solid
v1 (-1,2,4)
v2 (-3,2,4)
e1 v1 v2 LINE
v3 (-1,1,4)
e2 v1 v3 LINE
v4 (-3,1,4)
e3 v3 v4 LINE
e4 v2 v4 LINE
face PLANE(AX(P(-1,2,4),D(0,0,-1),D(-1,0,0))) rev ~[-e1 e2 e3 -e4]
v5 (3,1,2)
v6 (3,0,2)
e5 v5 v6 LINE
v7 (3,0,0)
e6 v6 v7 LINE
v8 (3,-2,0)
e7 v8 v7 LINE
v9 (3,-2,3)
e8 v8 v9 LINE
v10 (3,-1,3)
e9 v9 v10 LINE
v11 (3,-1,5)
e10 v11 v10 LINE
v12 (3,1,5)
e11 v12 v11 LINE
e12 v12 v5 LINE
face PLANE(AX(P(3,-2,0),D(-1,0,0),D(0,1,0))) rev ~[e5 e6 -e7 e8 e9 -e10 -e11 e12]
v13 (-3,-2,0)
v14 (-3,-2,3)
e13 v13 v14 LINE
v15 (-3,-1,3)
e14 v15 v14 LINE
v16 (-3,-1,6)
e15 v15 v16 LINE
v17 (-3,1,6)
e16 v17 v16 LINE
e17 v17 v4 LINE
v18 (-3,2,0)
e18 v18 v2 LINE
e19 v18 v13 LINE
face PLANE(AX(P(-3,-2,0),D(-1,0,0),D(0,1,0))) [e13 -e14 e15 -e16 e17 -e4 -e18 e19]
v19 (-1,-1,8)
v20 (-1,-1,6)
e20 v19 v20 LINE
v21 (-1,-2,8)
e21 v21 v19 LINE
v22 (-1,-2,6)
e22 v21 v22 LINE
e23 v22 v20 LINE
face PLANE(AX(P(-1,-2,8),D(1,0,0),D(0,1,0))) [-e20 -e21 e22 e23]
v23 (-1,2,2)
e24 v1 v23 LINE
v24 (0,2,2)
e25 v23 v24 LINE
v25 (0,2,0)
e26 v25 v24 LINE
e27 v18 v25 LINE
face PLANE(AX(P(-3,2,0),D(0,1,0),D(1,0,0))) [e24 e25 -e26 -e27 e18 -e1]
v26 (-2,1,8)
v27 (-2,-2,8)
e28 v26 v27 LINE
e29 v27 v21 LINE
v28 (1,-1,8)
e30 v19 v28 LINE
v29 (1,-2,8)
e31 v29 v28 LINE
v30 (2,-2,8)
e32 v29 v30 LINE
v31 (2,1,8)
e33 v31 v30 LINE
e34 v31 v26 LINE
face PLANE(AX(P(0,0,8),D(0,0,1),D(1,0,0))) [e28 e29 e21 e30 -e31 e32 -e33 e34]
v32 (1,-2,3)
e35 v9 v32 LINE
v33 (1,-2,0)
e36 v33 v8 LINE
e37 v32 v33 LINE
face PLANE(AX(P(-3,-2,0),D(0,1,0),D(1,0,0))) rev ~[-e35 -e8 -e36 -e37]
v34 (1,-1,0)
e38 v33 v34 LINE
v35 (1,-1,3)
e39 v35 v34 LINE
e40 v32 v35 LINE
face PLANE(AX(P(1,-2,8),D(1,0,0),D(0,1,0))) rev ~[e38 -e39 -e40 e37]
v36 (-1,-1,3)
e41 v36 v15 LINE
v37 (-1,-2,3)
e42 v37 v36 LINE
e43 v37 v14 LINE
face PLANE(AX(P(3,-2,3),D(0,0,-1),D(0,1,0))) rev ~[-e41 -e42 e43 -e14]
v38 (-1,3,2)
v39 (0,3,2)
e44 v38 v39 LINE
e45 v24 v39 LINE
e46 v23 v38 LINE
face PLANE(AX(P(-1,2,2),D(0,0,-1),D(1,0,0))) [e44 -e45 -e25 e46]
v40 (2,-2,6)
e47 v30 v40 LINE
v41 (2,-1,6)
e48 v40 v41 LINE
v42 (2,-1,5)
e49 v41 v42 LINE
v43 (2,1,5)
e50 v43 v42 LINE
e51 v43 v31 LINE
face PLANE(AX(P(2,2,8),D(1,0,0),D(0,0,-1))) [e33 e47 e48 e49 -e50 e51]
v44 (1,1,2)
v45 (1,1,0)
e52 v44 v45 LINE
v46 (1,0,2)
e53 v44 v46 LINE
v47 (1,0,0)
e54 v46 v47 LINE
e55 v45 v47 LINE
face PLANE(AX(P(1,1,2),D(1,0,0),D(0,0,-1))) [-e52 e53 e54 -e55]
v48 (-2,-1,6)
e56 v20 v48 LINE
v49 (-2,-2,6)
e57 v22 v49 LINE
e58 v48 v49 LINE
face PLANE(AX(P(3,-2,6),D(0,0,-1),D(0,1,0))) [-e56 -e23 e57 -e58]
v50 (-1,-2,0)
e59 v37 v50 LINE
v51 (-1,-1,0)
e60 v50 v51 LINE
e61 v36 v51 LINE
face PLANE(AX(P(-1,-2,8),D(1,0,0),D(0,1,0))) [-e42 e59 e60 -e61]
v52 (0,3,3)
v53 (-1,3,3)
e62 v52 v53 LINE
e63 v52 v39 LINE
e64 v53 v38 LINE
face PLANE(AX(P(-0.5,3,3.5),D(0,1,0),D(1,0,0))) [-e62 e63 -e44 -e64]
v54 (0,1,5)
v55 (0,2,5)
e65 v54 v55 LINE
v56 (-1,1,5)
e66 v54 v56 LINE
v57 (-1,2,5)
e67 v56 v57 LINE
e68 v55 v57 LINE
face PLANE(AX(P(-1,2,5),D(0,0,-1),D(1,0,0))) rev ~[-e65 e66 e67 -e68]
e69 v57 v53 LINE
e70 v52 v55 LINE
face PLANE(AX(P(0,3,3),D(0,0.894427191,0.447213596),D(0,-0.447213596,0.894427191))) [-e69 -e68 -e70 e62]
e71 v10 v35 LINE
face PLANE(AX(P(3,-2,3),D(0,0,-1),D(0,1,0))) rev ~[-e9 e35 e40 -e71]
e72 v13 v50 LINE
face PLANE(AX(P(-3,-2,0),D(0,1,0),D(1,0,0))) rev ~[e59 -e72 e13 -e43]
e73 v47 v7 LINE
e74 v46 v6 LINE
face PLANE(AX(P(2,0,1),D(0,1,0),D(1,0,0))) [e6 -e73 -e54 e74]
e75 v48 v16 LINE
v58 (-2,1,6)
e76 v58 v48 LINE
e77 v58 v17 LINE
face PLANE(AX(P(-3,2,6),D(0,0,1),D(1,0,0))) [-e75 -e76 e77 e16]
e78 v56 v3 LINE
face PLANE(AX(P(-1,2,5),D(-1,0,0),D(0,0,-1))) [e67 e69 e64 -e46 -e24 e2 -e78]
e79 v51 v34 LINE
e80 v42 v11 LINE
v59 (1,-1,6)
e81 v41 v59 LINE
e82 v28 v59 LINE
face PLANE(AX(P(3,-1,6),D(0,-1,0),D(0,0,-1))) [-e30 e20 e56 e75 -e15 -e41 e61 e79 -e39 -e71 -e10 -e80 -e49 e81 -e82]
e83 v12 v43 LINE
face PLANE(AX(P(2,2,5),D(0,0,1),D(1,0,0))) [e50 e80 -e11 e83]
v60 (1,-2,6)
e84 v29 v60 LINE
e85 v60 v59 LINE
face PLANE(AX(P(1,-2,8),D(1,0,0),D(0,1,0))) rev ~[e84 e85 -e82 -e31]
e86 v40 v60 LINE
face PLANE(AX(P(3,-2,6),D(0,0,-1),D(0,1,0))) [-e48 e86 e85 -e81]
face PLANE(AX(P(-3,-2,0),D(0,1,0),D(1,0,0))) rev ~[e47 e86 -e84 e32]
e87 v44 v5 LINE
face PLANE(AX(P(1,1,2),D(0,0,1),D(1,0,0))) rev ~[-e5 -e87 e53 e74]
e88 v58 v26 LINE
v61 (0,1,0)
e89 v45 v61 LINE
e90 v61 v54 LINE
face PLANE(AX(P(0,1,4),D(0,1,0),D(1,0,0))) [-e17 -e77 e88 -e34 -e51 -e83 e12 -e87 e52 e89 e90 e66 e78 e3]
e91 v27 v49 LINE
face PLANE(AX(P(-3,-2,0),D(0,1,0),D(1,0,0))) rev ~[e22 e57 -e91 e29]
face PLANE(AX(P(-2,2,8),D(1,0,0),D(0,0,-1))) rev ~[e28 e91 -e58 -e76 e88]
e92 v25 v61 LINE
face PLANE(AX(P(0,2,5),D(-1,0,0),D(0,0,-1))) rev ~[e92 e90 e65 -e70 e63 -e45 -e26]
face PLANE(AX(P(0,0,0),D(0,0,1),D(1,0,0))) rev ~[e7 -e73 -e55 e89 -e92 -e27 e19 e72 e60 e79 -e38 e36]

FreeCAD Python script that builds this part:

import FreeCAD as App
import Part
import Sketcher
Q = App.Units.Quantity

doc = App.newDocument("Part")
body = doc.addObject("PartDesign::Body", "Body")

# Sketch on XY plane
sketch1 = doc.addObject("Sketcher::SketchObject", "Sketch")
body.addObject(sketch1)
sketch1.AttachmentSupport = (doc.XY_Plane, [""])
sketch1.MapMode = "FlatFace"
sketch1.addGeometry([
    Part.LineSegment(App.Vector(-3, 2, 0), App.Vector(-3, -2, 0)),
    Part.LineSegment(App.Vector(-3, -2, 0), App.Vector(3, -2, 0)),
    Part.LineSegment(App.Vector(3, -2, 0), App.Vector(3, 2, 0)),
    Part.LineSegment(App.Vector(3, 2, 0), App.Vector(-3, 2, 0)),
], False)
sketch1.addConstraint([
    Sketcher.Constraint("Coincident", 0, 2, 1, 1),
    Sketcher.Constraint("Coincident", 1, 2, 2, 1),
    Sketcher.Constraint("Coincident", 2, 2, 3, 1),
    Sketcher.Constraint("Coincident", 3, 2, 0, 1),
    Sketcher.Constraint("Vertical", 0),
    Sketcher.Constraint("Horizontal", 1),
    Sketcher.Constraint("Vertical", 2),
    Sketcher.Constraint("Horizontal", 3),
    Sketcher.Constraint("Symmetric", 0, 2, 2, 2, -1, 1),
    Sketcher.Constraint("DistanceX", 1, 1, 1, 2, Q("6 mm")),
    Sketcher.Constraint("DistanceY", 0, 2, 0, 1, Q("4 mm")),
])
pad1 = doc.addObject("PartDesign::Pad", "Pad")
body.addObject(pad1)
pad1.Profile = sketch1
pad1.Length = 8

# Sketch on XY plane
sketch2 = doc.addObject("Sketcher::SketchObject", "Sketch001")
body.addObject(sketch2)
sketch2.AttachmentSupport = (doc.XY_Plane, [""])
sketch2.MapMode = "FlatFace"
sketch2.AttachmentOffset = App.Placement(App.Vector(0, 0, 8), App.Rotation())
sketch2.addGeometry([
    Part.LineSegment(App.Vector(-1, -1, 0), App.Vector(-1, -2, 0)),
    Part.LineSegment(App.Vector(-1, -2, 0), App.Vector(1, -2, 0)),
    Part.LineSegment(App.Vector(1, -2, 0), App.Vector(1, -1, 0)),
    Part.LineSegment(App.Vector(1, -1, 0), App.Vector(-1, -1, 0)),
], False)
sketch2.addConstraint([
    Sketcher.Constraint("Coincident", 0, 2, 1, 1),
    Sketcher.Constraint("Coincident", 1, 2, 2, 1),
    Sketcher.Constraint("Coincident", 2, 2, 3, 1),
    Sketcher.Constraint("Coincident", 3, 2, 0, 1),
    Sketcher.Constraint("Vertical", 0),
    Sketcher.Constraint("Horizontal", 1),
    Sketcher.Constraint("Vertical", 2),
    Sketcher.Constraint("Horizontal", 3),
    Sketcher.Constraint("DistanceX", 1, 1, 1, 2, Q("2 mm")),
    Sketcher.Constraint("DistanceY", 0, 2, 0, 1, Q("1 mm")),
    Sketcher.Constraint("DistanceX", 0, 2, -1, 1, Q("1 mm")),
    Sketcher.Constraint("DistanceY", 0, 2, -1, 1, Q("2 mm")),
])
pocket1 = doc.addObject("PartDesign::Pocket", "Pocket")
body.addObject(pocket1)
pocket1.Profile = sketch2
pocket1.Type = "ThroughAll"

# Sketch on XZ plane
sketch3 = doc.addObject("Sketcher::SketchObject", "Sketch002")
body.addObject(sketch3)
sketch3.AttachmentSupport = (doc.XZ_Plane, [""])
sketch3.MapMode = "FlatFace"
sketch3.AttachmentOffset = App.Placement(App.Vector(0, 0, -2), App.Rotation())
sketch3.addGeometry([
    Part.LineSegment(App.Vector(-3, 6, 0), App.Vector(-3, 8, 0)),  # 0
    Part.LineSegment(App.Vector(-3, 8, 0), App.Vector(-2, 8, 0)),  # 1
    Part.LineSegment(App.Vector(-2, 8, 0), App.Vector(-2, 6, 0)),  # 2
    Part.LineSegment(App.Vector(-2, 6, 0), App.Vector(-3, 6, 0)),  # 3
    Part.LineSegment(App.Vector(2, 5, 0), App.Vector(2, 8, 0)),  # 4
    Part.LineSegment(App.Vector(2, 8, 0), App.Vector(3, 8, 0)),  # 5
    Part.LineSegment(App.Vector(3, 8, 0), App.Vector(3, 5, 0)),  # 6
    Part.LineSegment(App.Vector(3, 5, 0), App.Vector(2, 5, 0)),  # 7
], False)
sketch3.addConstraint([
    Sketcher.Constraint("Coincident", 0, 2, 1, 1),
    Sketcher.Constraint("Coincident", 1, 2, 2, 1),
    Sketcher.Constraint("Coincident", 2, 2, 3, 1),
    Sketcher.Constraint("Coincident", 3, 2, 0, 1),
    Sketcher.Constraint("Coincident", 4, 2, 5, 1),
    Sketcher.Constraint("Coincident", 5, 2, 6, 1),
    Sketcher.Constraint("Coincident", 6, 2, 7, 1),
    Sketcher.Constraint("Coincident", 7, 2, 4, 1),
    Sketcher.Constraint("Vertical", 0),
    Sketcher.Constraint("Horizontal", 1),
    Sketcher.Constraint("Vertical", 2),
    Sketcher.Constraint("Horizontal", 3),
    Sketcher.Constraint("Vertical", 4),
    Sketcher.Constraint("Horizontal", 5),
    Sketcher.Constraint("Vertical", 6),
    Sketcher.Constraint("Horizontal", 7),
    Sketcher.Constraint("Symmetric", 1, 2, 4, 2, -2),
    Sketcher.Constraint("Equal", 3, 5),
    Sketcher.Constraint("DistanceX", 1, 1, 1, 2, Q("1 mm")),
    Sketcher.Constraint("DistanceY", 0, 1, 0, 2, Q("2 mm")),
    Sketcher.Constraint("DistanceY", 4, 1, 4, 2, Q("3 mm")),
    Sketcher.Constraint("DistanceX", 0, 2, -1, 1, Q("3 mm")),
    Sketcher.Constraint("DistanceY", -1, 1, 0, 2, Q("8 mm")),
])
pocket2 = doc.addObject("PartDesign::Pocket", "Pocket001")
body.addObject(pocket2)
pocket2.Profile = sketch3
pocket2.Type = "ThroughAll"
pocket2.Reversed = True

# Sketch on YZ plane
sketch4 = doc.addObject("Sketcher::SketchObject", "Sketch003")
body.addObject(sketch4)
sketch4.AttachmentSupport = (doc.YZ_Plane, [""])
sketch4.MapMode = "FlatFace"
sketch4.AttachmentOffset = App.Placement(App.Vector(0, 0, 3), App.Rotation())
sketch4.addGeometry([
    Part.LineSegment(App.Vector(-1, 6, 0), App.Vector(-2, 6, 0)),
    Part.LineSegment(App.Vector(-2, 6, 0), App.Vector(-2, 3, 0)),
    Part.LineSegment(App.Vector(-2, 3, 0), App.Vector(-1, 3, 0)),
    Part.LineSegment(App.Vector(-1, 3, 0), App.Vector(-1, 6, 0)),
], False)
sketch4.addConstraint([
    Sketcher.Constraint("Coincident", 0, 2, 1, 1),
    Sketcher.Constraint("Coincident", 1, 2, 2, 1),
    Sketcher.Constraint("Coincident", 2, 2, 3, 1),
    Sketcher.Constraint("Coincident", 3, 2, 0, 1),
    Sketcher.Constraint("Horizontal", 0),
    Sketcher.Constraint("Vertical", 1),
    Sketcher.Constraint("Horizontal", 2),
    Sketcher.Constraint("Vertical", 3),
    Sketcher.Constraint("DistanceX", 0, 2, 0, 1, Q("1 mm")),
    Sketcher.Constraint("DistanceY", 1, 2, 1, 1, Q("3 mm")),
    Sketcher.Constraint("DistanceX", 0, 2, -1, 1, Q("2 mm")),
    Sketcher.Constraint("DistanceY", -1, 1, 0, 2, Q("6 mm")),
])
pocket3 = doc.addObject("PartDesign::Pocket", "Pocket002")
body.addObject(pocket3)
pocket3.Profile = sketch4
pocket3.Type = "ThroughAll"

# Sketch on XZ plane
sketch5 = doc.addObject("Sketcher::SketchObject", "Sketch004")
body.addObject(sketch5)
sketch5.AttachmentSupport = (doc.XZ_Plane, [""])
sketch5.MapMode = "FlatFace"
sketch5.AttachmentOffset = App.Placement(App.Vector(0, 0, -2), App.Rotation())
sketch5.addGeometry([
    Part.LineSegment(App.Vector(-5.1, -2.1, 0), App.Vector(-5.1, 10.1, 0)),  # 0
    Part.LineSegment(App.Vector(-5.1, 10.1, 0), App.Vector(5.1, 10.1, 0)),  # 1
    Part.LineSegment(App.Vector(5.1, 10.1, 0), App.Vector(5.1, -2.1, 0)),  # 2
    Part.LineSegment(App.Vector(5.1, -2.1, 0), App.Vector(-5.1, -2.1, 0)),  # 3
    Part.LineSegment(App.Vector(-3, 4, 0), App.Vector(-3, 0, 0)),  # 4
    Part.LineSegment(App.Vector(-3, 0, 0), App.Vector(0, 0, 0)),  # 5
    Part.LineSegment(App.Vector(0, 0, 0), App.Vector(0, 5, 0)),  # 6
    Part.LineSegment(App.Vector(0, 5, 0), App.Vector(-1, 5, 0)),  # 7
    Part.LineSegment(App.Vector(-1, 5, 0), App.Vector(-1, 4, 0)),  # 8
    Part.LineSegment(App.Vector(-1, 4, 0), App.Vector(-3, 4, 0)),  # 9
], False)
sketch5.addConstraint([
    Sketcher.Constraint("Coincident", 0, 2, 1, 1),
    Sketcher.Constraint("Coincident", 1, 2, 2, 1),
    Sketcher.Constraint("Coincident", 2, 2, 3, 1),
    Sketcher.Constraint("Coincident", 3, 2, 0, 1),
    Sketcher.Constraint("Coincident", 4, 2, 5, 1),
    Sketcher.Constraint("Coincident", 5, 2, 6, 1),
    Sketcher.Constraint("Coincident", 6, 2, 7, 1),
    Sketcher.Constraint("Coincident", 7, 2, 8, 1),
    Sketcher.Constraint("Coincident", 8, 2, 9, 1),
    Sketcher.Constraint("Coincident", 9, 2, 4, 1),
    Sketcher.Constraint("Vertical", 0),
    Sketcher.Constraint("Horizontal", 1),
    Sketcher.Constraint("Vertical", 2),
    Sketcher.Constraint("Horizontal", 3),
    Sketcher.Constraint("Vertical", 4),
    Sketcher.Constraint("Horizontal", 5),
    Sketcher.Constraint("Vertical", 6),
    Sketcher.Constraint("Horizontal", 7),
    Sketcher.Constraint("Vertical", 8),
    Sketcher.Constraint("Horizontal", 9),
    Sketcher.Constraint("Coincident", 5, 2, -1, 1),
    Sketcher.Constraint("Equal", 7, 8),
    Sketcher.Constraint("DistanceX", 5, 1, 5, 2, Q("3 mm")),
    Sketcher.Constraint("DistanceX", 7, 2, 7, 1, Q("1 mm")),
    Sketcher.Constraint("DistanceY", 4, 2, 4, 1, Q("4 mm")),
    Sketcher.Constraint("DistanceX", 1, 1, 1, 2, Q("10.154 mm")),
    Sketcher.Constraint("DistanceY", 0, 1, 0, 2, Q("12.154 mm")),
    Sketcher.Constraint("DistanceX", 0, 2, -1, 1, Q("5.077 mm")),
    Sketcher.Constraint("DistanceY", -1, 1, 0, 2, Q("10.077 mm")),
])
pocket4 = doc.addObject("PartDesign::Pocket", "Pocket003")
body.addObject(pocket4)
pocket4.Profile = sketch5
pocket4.Length = 1
pocket4.Reversed = True

# Sketch on XZ plane
sketch6 = doc.addObject("Sketcher::SketchObject", "Sketch005")
body.addObject(sketch6)
sketch6.AttachmentSupport = (doc.XZ_Plane, [""])
sketch6.MapMode = "FlatFace"
sketch6.AttachmentOffset = App.Placement(App.Vector(0, 0, -1), App.Rotation())
sketch6.addGeometry([
    Part.LineSegment(App.Vector(1, 0, 0), App.Vector(1, 2, 0)),
    Part.LineSegment(App.Vector(1, 2, 0), App.Vector(3, 2, 0)),
    Part.LineSegment(App.Vector(3, 2, 0), App.Vector(3, 0, 0)),
    Part.LineSegment(App.Vector(3, 0, 0), App.Vector(1, 0, 0)),
], False)
sketch6.addConstraint([
    Sketcher.Constraint("Coincident", 0, 2, 1, 1),
    Sketcher.Constraint("Coincident", 1, 2, 2, 1),
    Sketcher.Constraint("Coincident", 2, 2, 3, 1),
    Sketcher.Constraint("Coincident", 3, 2, 0, 1),
    Sketcher.Constraint("Vertical", 0),
    Sketcher.Constraint("Horizontal", 1),
    Sketcher.Constraint("Vertical", 2),
    Sketcher.Constraint("Horizontal", 3),
    Sketcher.Constraint("PointOnObject", 2, 2, -1),
    Sketcher.Constraint("Equal", 3, 0),
    Sketcher.Constraint("DistanceX", 1, 1, 1, 2, Q("2 mm")),
    Sketcher.Constraint("DistanceX", -1, 1, 0, 2, Q("1 mm")),
])
pocket5 = doc.addObject("PartDesign::Pocket", "Pocket004")
body.addObject(pocket5)
pocket5.Profile = sketch6
pocket5.Length = 1
pocket5.Reversed = True

# Sketch on XZ plane
sketch7 = doc.addObject("Sketcher::SketchObject", "Sketch006")
body.addObject(sketch7)
sketch7.AttachmentSupport = (doc.XZ_Plane, [""])
sketch7.MapMode = "FlatFace"
sketch7.AttachmentOffset = App.Placement(App.Vector(0, 0, -2), App.Rotation())
sketch7.addGeometry([
    Part.LineSegment(App.Vector(-1, 2, 0), App.Vector(-1, 5, 0)),
    Part.LineSegment(App.Vector(-1, 5, 0), App.Vector(0, 5, 0)),
    Part.LineSegment(App.Vector(0, 5, 0), App.Vector(0, 2, 0)),
    Part.LineSegment(App.Vector(0, 2, 0), App.Vector(-1, 2, 0)),
], False)
sketch7.addConstraint([
    Sketcher.Constraint("Coincident", 0, 2, 1, 1),
    Sketcher.Constraint("Coincident", 1, 2, 2, 1),
    Sketcher.Constraint("Coincident", 2, 2, 3, 1),
    Sketcher.Constraint("Coincident", 3, 2, 0, 1),
    Sketcher.Constraint("Vertical", 0),
    Sketcher.Constraint("Horizontal", 1),
    Sketcher.Constraint("Vertical", 2),
    Sketcher.Constraint("Horizontal", 3),
    Sketcher.Constraint("PointOnObject", 1, 2, -2),
    Sketcher.Constraint("DistanceX", 1, 1, 1, 2, Q("1 mm")),
    Sketcher.Constraint("DistanceY", 0, 1, 0, 2, Q("3 mm")),
    Sketcher.Constraint("DistanceY", -1, 1, 0, 2, Q("5 mm")),
])
pad2 = doc.addObject("PartDesign::Pad", "Pad001")
body.addObject(pad2)
pad2.Profile = sketch7
pad2.Length = 1
pad2.Reversed = True

# Sketch on YZ plane
sketch8 = doc.addObject("Sketcher::SketchObject", "Sketch007")
body.addObject(sketch8)
sketch8.AttachmentSupport = (doc.YZ_Plane, [""])
sketch8.MapMode = "FlatFace"
sketch8.addGeometry([
    Part.LineSegment(App.Vector(2, 5, 0), App.Vector(3, 3, 0)),
    Part.LineSegment(App.Vector(3, 3, 0), App.Vector(3, 5, 0)),
    Part.LineSegment(App.Vector(3, 5, 0), App.Vector(2, 5, 0)),
], False)
sketch8.addConstraint([
    Sketcher.Constraint("Coincident", 0, 2, 1, 1),
    Sketcher.Constraint("Coincident", 1, 2, 2, 1),
    Sketcher.Constraint("Coincident", 2, 2, 0, 1),
    Sketcher.Constraint("Vertical", 1),
    Sketcher.Constraint("Horizontal", 2),
    Sketcher.Constraint("DistanceX", 2, 2, 2, 1, Q("1 mm")),
    Sketcher.Constraint("DistanceY", 1, 1, 1, 2, Q("2 mm")),
    Sketcher.Constraint("DistanceX", -1, 1, 0, 2, Q("3 mm")),
    Sketcher.Constraint("DistanceY", -1, 1, 0, 2, Q("3 mm")),
])
pocket6 = doc.addObject("PartDesign::Pocket", "Pocket005")
body.addObject(pocket6)
pocket6.Profile = sketch8
pocket6.Type = "ThroughAll"

doc.recompute()
